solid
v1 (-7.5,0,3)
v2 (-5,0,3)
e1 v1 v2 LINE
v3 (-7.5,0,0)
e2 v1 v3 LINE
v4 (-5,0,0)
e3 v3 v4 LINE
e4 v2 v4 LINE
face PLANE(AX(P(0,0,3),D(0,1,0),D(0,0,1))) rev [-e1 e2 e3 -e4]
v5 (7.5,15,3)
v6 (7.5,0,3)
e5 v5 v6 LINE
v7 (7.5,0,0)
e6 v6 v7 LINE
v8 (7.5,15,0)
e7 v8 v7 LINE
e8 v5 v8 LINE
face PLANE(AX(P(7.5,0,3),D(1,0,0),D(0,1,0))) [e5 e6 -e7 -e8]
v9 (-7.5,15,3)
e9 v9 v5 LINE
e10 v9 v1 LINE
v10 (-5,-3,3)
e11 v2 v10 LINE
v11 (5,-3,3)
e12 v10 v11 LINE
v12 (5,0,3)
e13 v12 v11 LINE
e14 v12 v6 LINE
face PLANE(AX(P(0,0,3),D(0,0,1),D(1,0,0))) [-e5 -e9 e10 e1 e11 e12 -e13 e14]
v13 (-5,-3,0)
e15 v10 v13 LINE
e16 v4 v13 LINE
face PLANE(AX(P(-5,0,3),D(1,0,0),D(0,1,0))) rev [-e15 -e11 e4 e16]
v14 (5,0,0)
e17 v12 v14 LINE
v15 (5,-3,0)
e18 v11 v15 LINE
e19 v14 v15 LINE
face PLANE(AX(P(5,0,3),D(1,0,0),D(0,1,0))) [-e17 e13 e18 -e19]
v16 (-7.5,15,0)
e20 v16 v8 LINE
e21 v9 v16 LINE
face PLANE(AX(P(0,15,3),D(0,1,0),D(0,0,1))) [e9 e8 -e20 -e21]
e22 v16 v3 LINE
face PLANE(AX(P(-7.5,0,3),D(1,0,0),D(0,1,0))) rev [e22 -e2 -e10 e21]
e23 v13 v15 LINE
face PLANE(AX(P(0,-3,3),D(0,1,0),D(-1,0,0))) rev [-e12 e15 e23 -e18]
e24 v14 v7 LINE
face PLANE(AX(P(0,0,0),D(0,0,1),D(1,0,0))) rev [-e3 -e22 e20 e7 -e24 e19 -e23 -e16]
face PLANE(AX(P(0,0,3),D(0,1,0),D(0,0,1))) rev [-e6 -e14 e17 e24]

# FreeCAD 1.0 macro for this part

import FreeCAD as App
import Part
import Sketcher

V = App.Vector

doc = App.newDocument("Part")
body = doc.addObject("PartDesign::Body", "Body")

# Sketch on XY plane
sketch1 = body.newObject("Sketcher::SketchObject", "Sketch")
sketch1.AttachmentSupport = (doc.getObject("XY_Plane"), [""])
sketch1.MapMode = "FlatFace"
sketch1.addGeometry(Part.LineSegment(V(-7.5, 15, 0), V(-7.5, 0, 0)), False)
sketch1.addGeometry(Part.LineSegment(V(-7.5, 0, 0), V(-5, 0, 0)), False)
sketch1.addGeometry(Part.LineSegment(V(-5, 0, 0), V(-5, -3, 0)), False)
sketch1.addGeometry(Part.LineSegment(V(-5, -3, 0), V(5, -3, 0)), False)
sketch1.addGeometry(Part.LineSegment(V(5, -3, 0), V(5, 0, 0)), False)
sketch1.addGeometry(Part.LineSegment(V(5, 0, 0), V(7.5, 0, 0)), False)
sketch1.addGeometry(Part.LineSegment(V(7.5, 0, 0), V(7.5, 15, 0)), False)
sketch1.addGeometry(Part.LineSegment(V(7.5, 15, 0), V(-7.5, 15, 0)), False)
sketch1.addConstraint(Sketcher.Constraint("Coincident", 0, 2, 1, 1))
sketch1.addConstraint(Sketcher.Constraint("Coincident", 1, 2, 2, 1))
sketch1.addConstraint(Sketcher.Constraint("Coincident", 2, 2, 3, 1))
sketch1.addConstraint(Sketcher.Constraint("Coincident", 3, 2, 4, 1))
sketch1.addConstraint(Sketcher.Constraint("Coincident", 4, 2, 5, 1))
sketch1.addConstraint(Sketcher.Constraint("Coincident", 5, 2, 6, 1))
sketch1.addConstraint(Sketcher.Constraint("Coincident", 6, 2, 7, 1))
sketch1.addConstraint(Sketcher.Constraint("Coincident", 7, 2, 0, 1))
sketch1.addConstraint(Sketcher.Constraint("Vertical", 0))
sketch1.addConstraint(Sketcher.Constraint("Horizontal", 1))
sketch1.addConstraint(Sketcher.Constraint("Vertical", 2))
sketch1.addConstraint(Sketcher.Constraint("Horizontal", 3))
sketch1.addConstraint(Sketcher.Constraint("Vertical", 4))
sketch1.addConstraint(Sketcher.Constraint("Horizontal", 5))
sketch1.addConstraint(Sketcher.Constraint("Vertical", 6))
sketch1.addConstraint(Sketcher.Constraint("Horizontal", 7))
sketch1.addConstraint(Sketcher.Constraint("Symmetric", 1, 2, 4, 2, -1, 1))
sketch1.addConstraint(Sketcher.Constraint("Symmetric", 0, 2, 5, 2, -2))
sketch1.addConstraint(Sketcher.Constraint("Equal", 7, 0))
sketch1.addConstraint(Sketcher.Constraint("DistanceX", 3, 1, 3, 2, 10.0))
sketch1.addConstraint(Sketcher.Constraint("DistanceX", 7, 2, 7, 1, 15.0))
sketch1.addConstraint(Sketcher.Constraint("DistanceY", 2, 2, 2, 1, 3.0))
pad1 = body.newObject("PartDesign::Pad", "Pad")
pad1.Profile = sketch1
pad1.Length = 3

doc.recompute()
